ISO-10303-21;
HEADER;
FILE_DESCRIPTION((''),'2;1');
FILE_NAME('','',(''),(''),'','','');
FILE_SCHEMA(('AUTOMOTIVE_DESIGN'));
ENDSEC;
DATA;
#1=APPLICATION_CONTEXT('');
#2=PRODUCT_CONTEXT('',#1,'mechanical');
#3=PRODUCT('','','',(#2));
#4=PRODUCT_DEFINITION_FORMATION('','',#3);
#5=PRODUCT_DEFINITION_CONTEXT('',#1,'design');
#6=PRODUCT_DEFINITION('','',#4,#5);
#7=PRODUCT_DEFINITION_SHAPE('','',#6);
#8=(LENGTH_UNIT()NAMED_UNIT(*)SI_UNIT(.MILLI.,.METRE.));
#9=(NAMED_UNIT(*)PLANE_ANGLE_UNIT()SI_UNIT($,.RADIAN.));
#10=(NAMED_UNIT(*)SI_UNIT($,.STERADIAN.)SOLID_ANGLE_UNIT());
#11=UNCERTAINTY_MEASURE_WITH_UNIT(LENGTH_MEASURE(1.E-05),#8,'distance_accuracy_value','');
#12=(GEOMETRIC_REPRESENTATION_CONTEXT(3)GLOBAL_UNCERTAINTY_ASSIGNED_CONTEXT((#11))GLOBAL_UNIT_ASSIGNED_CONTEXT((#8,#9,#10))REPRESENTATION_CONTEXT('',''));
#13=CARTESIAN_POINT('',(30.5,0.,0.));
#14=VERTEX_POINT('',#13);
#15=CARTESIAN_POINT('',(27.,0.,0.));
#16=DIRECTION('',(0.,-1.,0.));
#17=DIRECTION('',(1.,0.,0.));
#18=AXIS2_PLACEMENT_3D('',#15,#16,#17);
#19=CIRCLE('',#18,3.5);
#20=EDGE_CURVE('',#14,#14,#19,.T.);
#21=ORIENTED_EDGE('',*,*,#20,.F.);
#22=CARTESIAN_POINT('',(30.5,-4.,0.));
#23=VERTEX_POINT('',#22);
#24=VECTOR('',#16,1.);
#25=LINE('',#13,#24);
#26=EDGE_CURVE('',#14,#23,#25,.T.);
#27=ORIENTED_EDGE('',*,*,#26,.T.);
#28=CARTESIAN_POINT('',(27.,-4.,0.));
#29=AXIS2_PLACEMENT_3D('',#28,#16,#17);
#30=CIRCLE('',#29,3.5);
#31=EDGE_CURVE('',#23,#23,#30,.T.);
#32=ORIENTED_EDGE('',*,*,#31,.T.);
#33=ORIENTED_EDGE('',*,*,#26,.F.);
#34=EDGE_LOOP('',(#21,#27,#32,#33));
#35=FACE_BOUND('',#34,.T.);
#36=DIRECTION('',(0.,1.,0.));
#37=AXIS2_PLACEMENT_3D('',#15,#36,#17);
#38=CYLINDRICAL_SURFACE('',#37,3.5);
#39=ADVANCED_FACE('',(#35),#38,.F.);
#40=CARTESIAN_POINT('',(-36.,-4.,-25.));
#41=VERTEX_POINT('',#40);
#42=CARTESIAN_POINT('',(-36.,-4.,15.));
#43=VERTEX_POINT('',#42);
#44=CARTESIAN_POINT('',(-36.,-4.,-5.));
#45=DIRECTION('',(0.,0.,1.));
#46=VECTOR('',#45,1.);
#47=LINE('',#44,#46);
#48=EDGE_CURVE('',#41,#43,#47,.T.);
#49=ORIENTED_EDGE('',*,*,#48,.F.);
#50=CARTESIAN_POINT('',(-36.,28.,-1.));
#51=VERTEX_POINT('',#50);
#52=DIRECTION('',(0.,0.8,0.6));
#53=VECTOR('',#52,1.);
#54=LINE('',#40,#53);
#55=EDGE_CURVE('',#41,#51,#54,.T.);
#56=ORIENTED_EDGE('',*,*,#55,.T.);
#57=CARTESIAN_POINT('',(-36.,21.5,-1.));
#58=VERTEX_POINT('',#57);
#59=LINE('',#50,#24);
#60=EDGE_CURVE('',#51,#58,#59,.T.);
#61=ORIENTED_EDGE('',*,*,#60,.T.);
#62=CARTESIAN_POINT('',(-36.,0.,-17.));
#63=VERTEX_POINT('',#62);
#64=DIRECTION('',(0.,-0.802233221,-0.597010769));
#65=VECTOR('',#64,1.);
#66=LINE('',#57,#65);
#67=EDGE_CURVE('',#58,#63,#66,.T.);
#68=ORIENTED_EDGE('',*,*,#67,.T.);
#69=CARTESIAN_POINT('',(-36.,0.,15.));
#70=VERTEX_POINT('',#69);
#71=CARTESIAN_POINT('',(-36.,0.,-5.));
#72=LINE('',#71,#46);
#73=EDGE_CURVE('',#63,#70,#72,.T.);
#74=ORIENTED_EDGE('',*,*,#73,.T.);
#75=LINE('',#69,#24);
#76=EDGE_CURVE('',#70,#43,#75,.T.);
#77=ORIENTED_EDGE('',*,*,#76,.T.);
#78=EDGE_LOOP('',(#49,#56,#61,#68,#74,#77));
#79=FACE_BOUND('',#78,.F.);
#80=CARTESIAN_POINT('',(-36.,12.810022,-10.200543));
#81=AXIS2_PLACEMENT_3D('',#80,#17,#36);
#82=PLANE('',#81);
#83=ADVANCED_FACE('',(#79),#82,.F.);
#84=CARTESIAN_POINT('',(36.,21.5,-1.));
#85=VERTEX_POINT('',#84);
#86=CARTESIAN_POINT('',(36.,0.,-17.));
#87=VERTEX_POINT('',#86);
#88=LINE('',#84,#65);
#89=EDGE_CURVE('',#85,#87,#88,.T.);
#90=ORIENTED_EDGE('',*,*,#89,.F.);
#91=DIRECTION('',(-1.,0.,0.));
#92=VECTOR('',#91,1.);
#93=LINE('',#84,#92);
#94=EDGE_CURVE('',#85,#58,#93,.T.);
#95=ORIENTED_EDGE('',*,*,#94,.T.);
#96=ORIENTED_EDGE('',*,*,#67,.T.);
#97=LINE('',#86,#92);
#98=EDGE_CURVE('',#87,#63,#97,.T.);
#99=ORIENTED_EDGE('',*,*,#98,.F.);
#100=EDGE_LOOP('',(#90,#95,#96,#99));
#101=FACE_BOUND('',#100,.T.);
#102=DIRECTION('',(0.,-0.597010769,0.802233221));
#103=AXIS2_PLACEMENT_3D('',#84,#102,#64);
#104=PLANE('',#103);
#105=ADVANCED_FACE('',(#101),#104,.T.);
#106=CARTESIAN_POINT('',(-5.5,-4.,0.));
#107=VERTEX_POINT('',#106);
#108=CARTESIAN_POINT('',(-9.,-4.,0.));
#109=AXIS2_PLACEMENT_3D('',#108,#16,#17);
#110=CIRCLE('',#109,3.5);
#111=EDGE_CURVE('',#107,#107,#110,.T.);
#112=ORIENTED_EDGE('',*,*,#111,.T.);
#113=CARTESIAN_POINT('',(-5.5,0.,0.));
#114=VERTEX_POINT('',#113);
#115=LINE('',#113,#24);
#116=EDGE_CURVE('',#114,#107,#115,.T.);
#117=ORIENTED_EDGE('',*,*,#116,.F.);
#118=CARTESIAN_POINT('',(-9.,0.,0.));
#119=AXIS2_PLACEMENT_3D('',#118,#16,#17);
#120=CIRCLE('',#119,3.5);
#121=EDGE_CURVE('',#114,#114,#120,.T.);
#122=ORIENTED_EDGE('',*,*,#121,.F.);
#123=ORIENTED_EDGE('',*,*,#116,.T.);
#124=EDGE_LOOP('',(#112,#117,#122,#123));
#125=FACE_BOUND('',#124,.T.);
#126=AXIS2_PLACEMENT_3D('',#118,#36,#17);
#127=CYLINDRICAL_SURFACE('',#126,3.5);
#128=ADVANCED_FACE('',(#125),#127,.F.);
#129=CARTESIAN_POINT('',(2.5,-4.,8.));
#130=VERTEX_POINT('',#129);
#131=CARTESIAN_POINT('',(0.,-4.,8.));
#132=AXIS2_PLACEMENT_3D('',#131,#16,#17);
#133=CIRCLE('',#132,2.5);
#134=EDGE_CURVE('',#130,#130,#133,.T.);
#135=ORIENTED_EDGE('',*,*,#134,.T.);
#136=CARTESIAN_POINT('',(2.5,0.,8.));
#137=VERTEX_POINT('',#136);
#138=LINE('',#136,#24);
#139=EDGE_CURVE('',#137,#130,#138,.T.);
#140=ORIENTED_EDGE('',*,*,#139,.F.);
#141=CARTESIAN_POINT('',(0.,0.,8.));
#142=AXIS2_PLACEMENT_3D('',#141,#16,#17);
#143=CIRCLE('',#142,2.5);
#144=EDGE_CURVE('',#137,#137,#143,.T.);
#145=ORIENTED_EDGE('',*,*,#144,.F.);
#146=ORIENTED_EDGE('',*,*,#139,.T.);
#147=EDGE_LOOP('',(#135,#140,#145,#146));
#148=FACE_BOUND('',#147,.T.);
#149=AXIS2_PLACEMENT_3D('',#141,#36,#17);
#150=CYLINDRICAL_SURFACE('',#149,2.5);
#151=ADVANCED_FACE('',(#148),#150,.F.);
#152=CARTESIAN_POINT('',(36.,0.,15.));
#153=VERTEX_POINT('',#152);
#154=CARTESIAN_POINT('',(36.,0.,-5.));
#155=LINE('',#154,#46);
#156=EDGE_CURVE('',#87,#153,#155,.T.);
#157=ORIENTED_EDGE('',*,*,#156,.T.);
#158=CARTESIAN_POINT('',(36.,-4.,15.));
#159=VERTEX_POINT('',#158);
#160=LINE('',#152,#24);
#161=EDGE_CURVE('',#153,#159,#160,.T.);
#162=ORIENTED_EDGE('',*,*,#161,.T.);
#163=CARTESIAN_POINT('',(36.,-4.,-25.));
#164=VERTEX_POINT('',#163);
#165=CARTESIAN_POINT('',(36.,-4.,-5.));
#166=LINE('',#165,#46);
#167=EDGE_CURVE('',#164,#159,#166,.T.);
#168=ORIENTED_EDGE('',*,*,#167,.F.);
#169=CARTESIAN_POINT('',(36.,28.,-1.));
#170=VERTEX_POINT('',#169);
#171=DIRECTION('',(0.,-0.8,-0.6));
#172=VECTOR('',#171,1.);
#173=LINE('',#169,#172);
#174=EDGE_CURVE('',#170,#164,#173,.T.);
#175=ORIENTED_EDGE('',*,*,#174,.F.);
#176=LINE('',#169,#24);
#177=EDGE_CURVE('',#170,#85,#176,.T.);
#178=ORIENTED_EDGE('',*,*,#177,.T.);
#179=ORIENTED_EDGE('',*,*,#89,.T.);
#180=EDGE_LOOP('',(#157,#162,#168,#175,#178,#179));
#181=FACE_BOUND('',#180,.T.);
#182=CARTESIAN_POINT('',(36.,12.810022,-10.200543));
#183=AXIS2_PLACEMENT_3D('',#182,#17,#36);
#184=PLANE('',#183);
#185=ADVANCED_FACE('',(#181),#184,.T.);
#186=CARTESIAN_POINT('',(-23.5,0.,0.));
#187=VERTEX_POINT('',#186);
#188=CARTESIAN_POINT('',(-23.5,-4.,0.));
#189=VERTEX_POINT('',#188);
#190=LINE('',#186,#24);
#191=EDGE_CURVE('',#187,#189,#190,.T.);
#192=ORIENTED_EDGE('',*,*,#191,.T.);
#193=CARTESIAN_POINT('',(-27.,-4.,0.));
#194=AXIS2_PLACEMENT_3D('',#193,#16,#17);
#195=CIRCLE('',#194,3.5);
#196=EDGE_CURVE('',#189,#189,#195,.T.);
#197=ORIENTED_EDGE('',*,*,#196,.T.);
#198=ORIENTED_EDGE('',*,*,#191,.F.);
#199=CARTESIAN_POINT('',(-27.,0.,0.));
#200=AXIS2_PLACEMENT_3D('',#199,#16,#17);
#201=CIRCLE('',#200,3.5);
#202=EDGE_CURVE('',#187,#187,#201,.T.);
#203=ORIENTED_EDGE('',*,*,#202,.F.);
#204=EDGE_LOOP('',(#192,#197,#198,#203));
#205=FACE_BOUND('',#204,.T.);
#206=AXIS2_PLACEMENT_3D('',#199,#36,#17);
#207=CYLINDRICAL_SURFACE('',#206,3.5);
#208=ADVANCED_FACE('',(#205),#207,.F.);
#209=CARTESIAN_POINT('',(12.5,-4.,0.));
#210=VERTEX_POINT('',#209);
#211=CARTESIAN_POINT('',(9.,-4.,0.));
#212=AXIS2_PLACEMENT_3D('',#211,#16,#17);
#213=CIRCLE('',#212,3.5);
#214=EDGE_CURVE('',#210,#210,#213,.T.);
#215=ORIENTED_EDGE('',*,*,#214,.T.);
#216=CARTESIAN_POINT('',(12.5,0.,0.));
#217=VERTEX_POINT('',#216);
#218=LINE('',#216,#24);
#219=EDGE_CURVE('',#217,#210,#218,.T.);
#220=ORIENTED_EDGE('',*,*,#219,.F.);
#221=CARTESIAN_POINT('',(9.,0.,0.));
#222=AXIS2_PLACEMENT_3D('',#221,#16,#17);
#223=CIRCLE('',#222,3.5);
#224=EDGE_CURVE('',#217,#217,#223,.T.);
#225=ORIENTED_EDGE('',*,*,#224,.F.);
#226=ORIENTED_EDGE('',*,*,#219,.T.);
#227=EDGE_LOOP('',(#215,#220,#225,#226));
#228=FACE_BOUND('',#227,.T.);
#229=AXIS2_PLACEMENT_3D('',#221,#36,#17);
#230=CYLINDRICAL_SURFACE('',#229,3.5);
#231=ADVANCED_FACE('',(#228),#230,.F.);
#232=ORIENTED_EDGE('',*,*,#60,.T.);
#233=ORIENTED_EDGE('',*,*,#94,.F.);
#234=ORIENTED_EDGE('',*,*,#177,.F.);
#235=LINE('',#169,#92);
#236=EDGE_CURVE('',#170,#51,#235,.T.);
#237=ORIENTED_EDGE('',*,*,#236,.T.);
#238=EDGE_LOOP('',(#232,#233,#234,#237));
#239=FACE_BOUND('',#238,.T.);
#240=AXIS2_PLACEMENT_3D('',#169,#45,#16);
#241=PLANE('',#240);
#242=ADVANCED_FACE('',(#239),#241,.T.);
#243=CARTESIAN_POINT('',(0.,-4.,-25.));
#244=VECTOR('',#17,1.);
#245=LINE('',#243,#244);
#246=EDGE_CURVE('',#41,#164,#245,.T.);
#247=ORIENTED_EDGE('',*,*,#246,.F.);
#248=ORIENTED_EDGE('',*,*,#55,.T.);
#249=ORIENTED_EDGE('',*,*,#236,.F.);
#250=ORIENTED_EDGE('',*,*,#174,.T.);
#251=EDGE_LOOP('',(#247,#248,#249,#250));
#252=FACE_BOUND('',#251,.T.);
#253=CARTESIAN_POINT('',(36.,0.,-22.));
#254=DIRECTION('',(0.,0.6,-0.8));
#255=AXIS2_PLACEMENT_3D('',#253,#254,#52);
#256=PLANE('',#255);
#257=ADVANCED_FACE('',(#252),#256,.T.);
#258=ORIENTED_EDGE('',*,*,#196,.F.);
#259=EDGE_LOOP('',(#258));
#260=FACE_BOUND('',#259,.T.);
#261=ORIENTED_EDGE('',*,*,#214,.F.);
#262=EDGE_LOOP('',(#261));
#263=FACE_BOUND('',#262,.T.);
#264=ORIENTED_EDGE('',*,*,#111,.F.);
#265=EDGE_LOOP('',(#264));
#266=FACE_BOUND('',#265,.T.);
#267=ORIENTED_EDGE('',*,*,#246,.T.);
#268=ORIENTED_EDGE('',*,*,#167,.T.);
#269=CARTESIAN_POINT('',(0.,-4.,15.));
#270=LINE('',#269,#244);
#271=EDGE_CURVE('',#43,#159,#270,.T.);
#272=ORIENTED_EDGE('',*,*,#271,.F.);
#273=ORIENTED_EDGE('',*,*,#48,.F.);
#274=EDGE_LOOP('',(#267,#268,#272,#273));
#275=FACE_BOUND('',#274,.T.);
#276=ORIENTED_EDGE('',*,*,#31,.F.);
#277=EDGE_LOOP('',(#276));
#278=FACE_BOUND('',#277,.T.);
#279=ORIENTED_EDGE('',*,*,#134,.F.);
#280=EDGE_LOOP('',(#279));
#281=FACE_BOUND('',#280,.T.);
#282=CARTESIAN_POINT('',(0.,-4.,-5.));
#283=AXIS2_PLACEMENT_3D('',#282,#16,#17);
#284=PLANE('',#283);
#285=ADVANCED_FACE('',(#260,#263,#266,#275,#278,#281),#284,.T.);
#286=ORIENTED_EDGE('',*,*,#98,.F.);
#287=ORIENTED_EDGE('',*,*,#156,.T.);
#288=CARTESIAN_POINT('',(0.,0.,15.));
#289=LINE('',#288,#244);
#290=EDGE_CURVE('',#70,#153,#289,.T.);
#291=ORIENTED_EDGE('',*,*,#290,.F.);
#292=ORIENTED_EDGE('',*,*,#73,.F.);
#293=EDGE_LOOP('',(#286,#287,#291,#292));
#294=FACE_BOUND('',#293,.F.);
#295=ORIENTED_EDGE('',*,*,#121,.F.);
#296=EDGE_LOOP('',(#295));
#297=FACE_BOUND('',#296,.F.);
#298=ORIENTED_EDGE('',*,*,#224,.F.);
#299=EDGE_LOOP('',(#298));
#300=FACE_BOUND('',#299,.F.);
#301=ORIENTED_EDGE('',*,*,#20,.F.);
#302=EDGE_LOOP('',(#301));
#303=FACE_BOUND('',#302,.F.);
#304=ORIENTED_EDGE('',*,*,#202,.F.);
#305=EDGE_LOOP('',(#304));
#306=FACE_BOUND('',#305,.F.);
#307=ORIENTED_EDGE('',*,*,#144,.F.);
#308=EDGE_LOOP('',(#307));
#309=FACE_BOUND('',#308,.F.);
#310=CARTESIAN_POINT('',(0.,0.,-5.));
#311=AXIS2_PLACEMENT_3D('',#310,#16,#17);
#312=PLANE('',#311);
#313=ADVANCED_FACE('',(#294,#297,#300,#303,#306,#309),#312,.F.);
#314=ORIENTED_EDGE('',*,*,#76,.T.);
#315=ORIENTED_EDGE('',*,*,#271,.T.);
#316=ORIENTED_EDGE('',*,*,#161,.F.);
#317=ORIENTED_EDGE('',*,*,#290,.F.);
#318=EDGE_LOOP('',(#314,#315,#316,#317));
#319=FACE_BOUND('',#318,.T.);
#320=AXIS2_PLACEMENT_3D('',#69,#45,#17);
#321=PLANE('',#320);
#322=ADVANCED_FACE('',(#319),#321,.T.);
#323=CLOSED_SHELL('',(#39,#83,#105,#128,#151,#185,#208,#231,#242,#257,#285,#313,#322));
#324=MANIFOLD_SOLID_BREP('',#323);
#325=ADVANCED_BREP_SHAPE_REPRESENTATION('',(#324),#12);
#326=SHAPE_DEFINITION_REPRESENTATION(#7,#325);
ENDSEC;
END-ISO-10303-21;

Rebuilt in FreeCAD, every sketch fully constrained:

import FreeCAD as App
import Part
import Sketcher

V = App.Vector
Q = App.Units.Quantity


def add_polygon(sketch, points):
    """Adds a closed chain of lines whose ends are joined by coincident constraints."""
    first, n = sketch.GeometryCount, len(points)
    for a, b in zip(points, points[1:] + points[:1]):
        sketch.addGeometry(Part.LineSegment(App.Vector(*a, 0), App.Vector(*b, 0)), False)
    for i in range(n):
        sketch.addConstraint(Sketcher.Constraint("Coincident", first + i, 2, first + (i + 1) % n, 1))

doc = App.newDocument("Part")
body = doc.addObject("PartDesign::Body", "Body")

sketch1 = body.newObject("Sketcher::SketchObject", "Sketch")
sketch1.AttachmentSupport = (doc.getObject("XZ_Plane"), [""])
sketch1.MapMode = "FlatFace"
add_polygon(sketch1, [(-36, 15), (-36, -25), (36, -25), (36, 15)])
sketch1.addGeometry(Part.Circle(V(-27, 0, 0), V(0, 0, 1), 3.5), False)
sketch1.addGeometry(Part.Circle(V(-9, 0, 0), V(0, 0, 1), 3.5), False)
sketch1.addGeometry(Part.Circle(V(9, 0, 0), V(0, 0, 1), 3.5), False)
sketch1.addGeometry(Part.Circle(V(27, 0, 0), V(0, 0, 1), 3.5), False)
sketch1.addGeometry(Part.Circle(V(0, 8, 0), V(0, 0, 1), 2.5), False)
sketch1.addConstraint([
    Sketcher.Constraint("Vertical", 0),
    Sketcher.Constraint("Horizontal", 1),
    Sketcher.Constraint("Vertical", 2),
    Sketcher.Constraint("Horizontal", 3),
    Sketcher.Constraint("Equal", 4, 5),
    Sketcher.Constraint("Equal", 5, 6),
    Sketcher.Constraint("Equal", 6, 7),
    Sketcher.Constraint("Symmetric", 5, 3, 6, 3, -1, 1),
    Sketcher.Constraint("Symmetric", 4, 3, 7, 3, -1, 1),
    Sketcher.Constraint("PointOnObject", 4, 3, -1),
    Sketcher.Constraint("PointOnObject", 5, 3, -1),
    Sketcher.Constraint("PointOnObject", 8, 3, -2),
    Sketcher.Constraint("Diameter", 4, Q("7 mm")),
    Sketcher.Constraint("Diameter", 8, Q("5 mm")),
    Sketcher.Constraint("DistanceX", 1, 1, 1, 2, Q("72 mm")),
    Sketcher.Constraint("DistanceY", 0, 2, 0, 1, Q("40 mm")),
    Sketcher.Constraint("DistanceX", 4, 3, -1, 1, Q("27 mm")),
    Sketcher.Constraint("DistanceX", 5, 3, -1, 1, Q("9 mm")),
    Sketcher.Constraint("DistanceY", -1, 1, 8, 3, Q("8 mm")),
    Sketcher.Constraint("DistanceX", 0, 2, -1, 1, Q("36 mm")),
    Sketcher.Constraint("DistanceY", 0, 2, -1, 1, Q("25 mm")),
])
pad1 = body.newObject("PartDesign::Pad", "Pad")
pad1.Profile = sketch1
pad1.Length = 4

sketch2 = body.newObject("Sketcher::SketchObject", "Sketch001")
sketch2.AttachmentSupport = (doc.getObject("YZ_Plane"), [""])
sketch2.MapMode = "FlatFace"
sketch2.AttachmentOffset = App.Placement(V(0, 0, 36), App.Rotation())
add_polygon(sketch2, [(0, -22), (-4, -25), (0, -25)])
sketch2.addConstraint([
    Sketcher.Constraint("Horizontal", 1),
    Sketcher.Constraint("Vertical", 2),
    Sketcher.Constraint("PointOnObject", 1, 2, -2),
    Sketcher.Constraint("DistanceX", 1, 1, 1, 2, Q("4 mm")),
    Sketcher.Constraint("DistanceY", 2, 1, 2, 2, Q("3 mm")),
    Sketcher.Constraint("DistanceY", 0, 2, -1, 1, Q("25 mm")),
])
pocket1 = body.newObject("PartDesign::Pocket", "Pocket")
pocket1.Profile = sketch2
pocket1.Length = 72

sketch3 = body.newObject("Sketcher::SketchObject", "Sketch002")
sketch3.AttachmentSupport = (doc.getObject("YZ_Plane"), [""])
sketch3.MapMode = "FlatFace"
sketch3.AttachmentOffset = App.Placement(V(0, 0, 36), App.Rotation())
add_polygon(sketch3, [(0, -17), (0, -22), (28, -1), (21.5, -1)])
sketch3.addConstraint([
    Sketcher.Constraint("Vertical", 0),
    Sketcher.Constraint("Horizontal", 2),
    Sketcher.Constraint("PointOnObject", 0, 2, -2),
    Sketcher.Constraint("DistanceY", 0, 2, 0, 1, Q("5 mm")),
    Sketcher.Constraint("Distance", 1, Q("35 mm")),
    Sketcher.Constraint("DistanceX", 2, 2, 2, 1, Q("6.5 mm")),
    Sketcher.Constraint("DistanceY", 0, 2, -1, 1, Q("22 mm")),
    Sketcher.Constraint("DistanceX", -1, 1, 1, 2, Q("28 mm")),
])
pad2 = body.newObject("PartDesign::Pad", "Pad001")
pad2.Profile = sketch3
pad2.Length = 72
pad2.Reversed = True

doc.recompute()
